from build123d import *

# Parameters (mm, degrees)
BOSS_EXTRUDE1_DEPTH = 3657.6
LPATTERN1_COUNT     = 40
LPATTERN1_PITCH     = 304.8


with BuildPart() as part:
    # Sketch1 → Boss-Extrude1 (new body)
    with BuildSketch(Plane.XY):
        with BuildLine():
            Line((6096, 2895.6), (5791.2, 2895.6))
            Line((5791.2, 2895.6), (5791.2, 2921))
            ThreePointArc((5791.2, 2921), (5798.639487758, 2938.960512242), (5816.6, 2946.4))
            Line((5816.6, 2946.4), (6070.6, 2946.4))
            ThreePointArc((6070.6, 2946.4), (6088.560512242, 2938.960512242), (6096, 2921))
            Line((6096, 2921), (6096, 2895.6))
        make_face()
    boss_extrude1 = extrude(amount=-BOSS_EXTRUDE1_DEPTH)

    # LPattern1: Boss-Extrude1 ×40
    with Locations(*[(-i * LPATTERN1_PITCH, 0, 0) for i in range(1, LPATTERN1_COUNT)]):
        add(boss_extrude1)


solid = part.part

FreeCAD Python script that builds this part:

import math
import FreeCAD as App
import Part
import Sketcher
Q = App.Units.Quantity

doc = App.newDocument("Part")
body = doc.addObject("PartDesign::Body", "Body")

# Sketch on XY plane
sketch1 = doc.addObject("Sketcher::SketchObject", "Sketch")
body.addObject(sketch1)
sketch1.AttachmentSupport = (doc.XY_Plane, [""])
sketch1.MapMode = "FlatFace"
sketch1.addGeometry(Part.LineSegment(App.Vector(5791, 2896, 0), App.Vector(6096, 2896, 0)), False)
sketch1.addGeometry(Part.LineSegment(App.Vector(6096, 2896, 0), App.Vector(6096, 2921, 0)), False)
sketch1.addGeometry(Part.ArcOfCircle(Part.Circle(App.Vector(6071, 2921, 0), App.Vector(0, 0, 1), 25), math.radians(0), math.radians(90)), False)
sketch1.addGeometry(Part.LineSegment(App.Vector(6071, 2946, 0), App.Vector(5817, 2946, 0)), False)
sketch1.addGeometry(Part.ArcOfCircle(Part.Circle(App.Vector(5817, 2921, 0), App.Vector(0, 0, 1), 25), math.radians(90), math.radians(180)), False)
sketch1.addGeometry(Part.LineSegment(App.Vector(5791, 2921, 0), App.Vector(5791, 2896, 0)), False)
sketch1.addConstraint(Sketcher.Constraint("Coincident", 0, 2, 1, 1))
sketch1.addConstraint(Sketcher.Constraint("Tangent", 1, 2, 2, 1))
sketch1.addConstraint(Sketcher.Constraint("Tangent", 2, 2, 3, 1))
sketch1.addConstraint(Sketcher.Constraint("Tangent", 3, 2, 4, 1))
sketch1.addConstraint(Sketcher.Constraint("Tangent", 4, 2, 5, 1))
sketch1.addConstraint(Sketcher.Constraint("Coincident", 5, 2, 0, 1))
sketch1.addConstraint(Sketcher.Constraint("Horizontal", 0))
sketch1.addConstraint(Sketcher.Constraint("Vertical", 1))
sketch1.addConstraint(Sketcher.Constraint("Horizontal", 3))
sketch1.addConstraint(Sketcher.Constraint("Vertical", 5))
sketch1.addConstraint(Sketcher.Constraint("Equal", 2, 4))
sketch1.addConstraint(Sketcher.Constraint("Radius", 2, Q("1 in")))
sketch1.addConstraint(Sketcher.Constraint("DistanceX", 0, 1, 0, 2, Q("12 in")))
sketch1.addConstraint(Sketcher.Constraint("DistanceY", 1, 1, 1, 2, Q("1 in")))
sketch1.addConstraint(Sketcher.Constraint("DistanceX", -1, 1, 2, 3, Q("239 in")))
sketch1.addConstraint(Sketcher.Constraint("DistanceY", -1, 1, 2, 3, Q("115 in")))
pad1 = doc.addObject("PartDesign::Pad", "Pad")
body.addObject(pad1)
pad1.Profile = sketch1
pad1.Length = Q("144 in")
pad1.Reversed = True
doc.recompute()

linearpattern = doc.addObject("PartDesign::LinearPattern", "LinearPattern")
body.addObject(linearpattern)
linearpattern.Originals = [pad1]
linearpattern.Direction = (doc.X_Axis, [""])
linearpattern.Mode = "offset"
linearpattern.Offset = Q("12 in")
linearpattern.Occurrences = 40
linearpattern.Reversed = True
body.Tip = linearpattern

doc.recompute()
